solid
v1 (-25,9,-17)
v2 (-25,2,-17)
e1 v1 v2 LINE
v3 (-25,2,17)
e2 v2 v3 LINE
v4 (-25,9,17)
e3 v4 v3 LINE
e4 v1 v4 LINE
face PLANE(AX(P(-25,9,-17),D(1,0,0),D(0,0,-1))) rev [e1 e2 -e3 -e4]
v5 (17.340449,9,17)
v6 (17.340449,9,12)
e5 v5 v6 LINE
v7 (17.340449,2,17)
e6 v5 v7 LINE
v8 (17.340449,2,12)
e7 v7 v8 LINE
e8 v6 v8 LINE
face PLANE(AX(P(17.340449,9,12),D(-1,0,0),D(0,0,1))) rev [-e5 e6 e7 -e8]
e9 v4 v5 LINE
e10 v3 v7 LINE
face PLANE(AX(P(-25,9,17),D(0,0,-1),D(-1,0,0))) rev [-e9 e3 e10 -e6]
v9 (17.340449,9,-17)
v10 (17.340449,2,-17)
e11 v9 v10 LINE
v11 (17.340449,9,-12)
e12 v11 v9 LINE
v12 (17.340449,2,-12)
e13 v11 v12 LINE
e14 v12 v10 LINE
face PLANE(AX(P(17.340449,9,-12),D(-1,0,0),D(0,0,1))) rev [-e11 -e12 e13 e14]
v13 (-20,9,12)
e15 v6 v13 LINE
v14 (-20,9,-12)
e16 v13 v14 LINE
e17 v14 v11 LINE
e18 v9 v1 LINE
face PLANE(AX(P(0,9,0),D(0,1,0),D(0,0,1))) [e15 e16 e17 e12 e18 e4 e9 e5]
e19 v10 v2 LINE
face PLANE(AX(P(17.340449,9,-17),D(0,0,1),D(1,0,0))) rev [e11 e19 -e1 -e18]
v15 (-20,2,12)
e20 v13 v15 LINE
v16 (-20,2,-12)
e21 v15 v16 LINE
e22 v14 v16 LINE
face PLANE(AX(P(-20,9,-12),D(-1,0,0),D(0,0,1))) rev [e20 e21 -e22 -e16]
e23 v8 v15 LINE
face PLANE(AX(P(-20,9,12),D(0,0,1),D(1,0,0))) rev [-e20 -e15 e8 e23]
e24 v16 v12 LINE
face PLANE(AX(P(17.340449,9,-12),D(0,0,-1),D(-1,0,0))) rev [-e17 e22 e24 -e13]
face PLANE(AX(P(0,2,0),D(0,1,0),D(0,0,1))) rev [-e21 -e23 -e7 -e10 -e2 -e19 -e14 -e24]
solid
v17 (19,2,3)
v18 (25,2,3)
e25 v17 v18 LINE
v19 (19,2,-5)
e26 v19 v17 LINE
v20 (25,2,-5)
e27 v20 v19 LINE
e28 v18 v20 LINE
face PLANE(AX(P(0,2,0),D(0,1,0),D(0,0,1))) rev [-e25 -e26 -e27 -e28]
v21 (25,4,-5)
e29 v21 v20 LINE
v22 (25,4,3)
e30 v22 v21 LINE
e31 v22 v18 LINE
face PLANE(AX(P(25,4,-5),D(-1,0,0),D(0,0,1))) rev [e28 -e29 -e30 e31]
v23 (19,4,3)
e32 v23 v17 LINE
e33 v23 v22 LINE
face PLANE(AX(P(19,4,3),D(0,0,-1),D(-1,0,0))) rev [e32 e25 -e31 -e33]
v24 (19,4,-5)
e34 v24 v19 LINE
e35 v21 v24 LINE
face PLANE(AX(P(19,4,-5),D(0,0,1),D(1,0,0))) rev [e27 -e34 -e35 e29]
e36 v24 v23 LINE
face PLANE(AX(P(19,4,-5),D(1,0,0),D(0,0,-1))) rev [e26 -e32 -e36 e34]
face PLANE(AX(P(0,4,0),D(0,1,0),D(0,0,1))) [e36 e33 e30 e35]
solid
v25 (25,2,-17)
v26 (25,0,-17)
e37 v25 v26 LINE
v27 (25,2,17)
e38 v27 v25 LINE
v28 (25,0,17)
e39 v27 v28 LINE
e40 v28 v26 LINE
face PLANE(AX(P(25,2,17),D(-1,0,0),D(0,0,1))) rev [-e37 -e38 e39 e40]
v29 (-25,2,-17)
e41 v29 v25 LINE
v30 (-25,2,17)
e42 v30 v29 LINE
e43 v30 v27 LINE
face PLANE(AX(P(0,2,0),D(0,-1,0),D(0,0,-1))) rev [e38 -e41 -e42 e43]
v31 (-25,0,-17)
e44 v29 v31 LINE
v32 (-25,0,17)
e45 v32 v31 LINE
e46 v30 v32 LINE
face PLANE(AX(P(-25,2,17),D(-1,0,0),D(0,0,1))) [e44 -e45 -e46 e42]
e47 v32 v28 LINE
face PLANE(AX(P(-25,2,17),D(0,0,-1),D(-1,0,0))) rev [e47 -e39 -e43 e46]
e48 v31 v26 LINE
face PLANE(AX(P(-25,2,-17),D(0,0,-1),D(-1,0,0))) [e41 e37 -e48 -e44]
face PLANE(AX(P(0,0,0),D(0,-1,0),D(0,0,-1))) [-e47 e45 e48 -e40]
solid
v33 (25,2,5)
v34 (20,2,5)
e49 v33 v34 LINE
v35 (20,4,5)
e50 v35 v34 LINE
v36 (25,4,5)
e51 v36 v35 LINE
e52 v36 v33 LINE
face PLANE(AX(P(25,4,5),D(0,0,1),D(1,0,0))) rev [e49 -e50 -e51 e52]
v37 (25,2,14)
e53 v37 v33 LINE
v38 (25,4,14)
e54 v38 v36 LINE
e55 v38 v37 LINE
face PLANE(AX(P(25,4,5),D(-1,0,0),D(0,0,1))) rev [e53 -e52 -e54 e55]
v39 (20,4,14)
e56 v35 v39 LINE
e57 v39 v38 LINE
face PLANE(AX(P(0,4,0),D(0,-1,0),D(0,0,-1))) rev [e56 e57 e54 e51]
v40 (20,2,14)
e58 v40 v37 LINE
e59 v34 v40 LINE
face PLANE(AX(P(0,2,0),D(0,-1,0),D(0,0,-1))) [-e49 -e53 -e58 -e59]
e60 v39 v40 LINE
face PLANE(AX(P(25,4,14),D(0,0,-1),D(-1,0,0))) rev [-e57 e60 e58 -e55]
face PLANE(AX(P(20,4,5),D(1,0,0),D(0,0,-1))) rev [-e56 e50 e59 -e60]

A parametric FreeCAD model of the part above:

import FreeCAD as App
import Part
import Sketcher
from FreeCAD import Vector
Q = App.Units.Quantity

doc = App.newDocument("Part")
body = doc.addObject("PartDesign::Body", "Body")

# Sketch on XZ plane
sketch1 = doc.addObject("Sketcher::SketchObject", "Sketch")
body.addObject(sketch1)
sketch1.AttachmentSupport = (doc.XZ_Plane, [""])
sketch1.MapMode = "FlatFace"
sketch1.addGeometry(Part.LineSegment(Vector(-25, -17, 0), Vector(-25, 17, 0)), False)
sketch1.addGeometry(Part.LineSegment(Vector(-25, 17, 0), Vector(25, 17, 0)), False)
sketch1.addGeometry(Part.LineSegment(Vector(25, 17, 0), Vector(25, -17, 0)), False)
sketch1.addGeometry(Part.LineSegment(Vector(25, -17, 0), Vector(-25, -17, 0)), False)
sketch1.addConstraint(Sketcher.Constraint("Coincident", 0, 2, 1, 1))
sketch1.addConstraint(Sketcher.Constraint("Coincident", 1, 2, 2, 1))
sketch1.addConstraint(Sketcher.Constraint("Coincident", 2, 2, 3, 1))
sketch1.addConstraint(Sketcher.Constraint("Coincident", 3, 2, 0, 1))
sketch1.addConstraint(Sketcher.Constraint("Vertical", 0))
sketch1.addConstraint(Sketcher.Constraint("Horizontal", 1))
sketch1.addConstraint(Sketcher.Constraint("Vertical", 2))
sketch1.addConstraint(Sketcher.Constraint("Horizontal", 3))
sketch1.addConstraint(Sketcher.Constraint("Symmetric", 0, 2, 2, 2, -1, 1))
sketch1.addConstraint(Sketcher.Constraint("DistanceX", 1, 1, 1, 2, Q("50 mm")))
sketch1.addConstraint(Sketcher.Constraint("DistanceY", 0, 1, 0, 2, Q("34 mm")))
pad1 = doc.addObject("PartDesign::Pad", "Pad")
body.addObject(pad1)
pad1.Profile = sketch1
pad1.Length = 2
pad1.Reversed = True
body2 = doc.addObject("PartDesign::Body", "Body001")

# Sketch on XZ plane
sketch2 = doc.addObject("Sketcher::SketchObject", "Sketch001")
body2.addObject(sketch2)
sketch2.AttachmentSupport = (doc.getObject("XZ_Plane001"), [""])
sketch2.MapMode = "FlatFace"
sketch2.AttachmentOffset = App.Placement(Vector(0, 0, -2), App.Rotation())
sketch2.addGeometry(Part.LineSegment(Vector(19, -5, 0), Vector(19, 3, 0)), False)
sketch2.addGeometry(Part.LineSegment(Vector(19, 3, 0), Vector(25, 3, 0)), False)
sketch2.addGeometry(Part.LineSegment(Vector(25, 3, 0), Vector(25, -5, 0)), False)
sketch2.addGeometry(Part.LineSegment(Vector(25, -5, 0), Vector(19, -5, 0)), False)
sketch2.addConstraint(Sketcher.Constraint("Coincident", 0, 2, 1, 1))
sketch2.addConstraint(Sketcher.Constraint("Coincident", 1, 2, 2, 1))
sketch2.addConstraint(Sketcher.Constraint("Coincident", 2, 2, 3, 1))
sketch2.addConstraint(Sketcher.Constraint("Coincident", 3, 2, 0, 1))
sketch2.addConstraint(Sketcher.Constraint("Vertical", 0))
sketch2.addConstraint(Sketcher.Constraint("Horizontal", 1))
sketch2.addConstraint(Sketcher.Constraint("Vertical", 2))
sketch2.addConstraint(Sketcher.Constraint("Horizontal", 3))
sketch2.addConstraint(Sketcher.Constraint("DistanceX", 1, 1, 1, 2, Q("6 mm")))
sketch2.addConstraint(Sketcher.Constraint("DistanceY", 0, 1, 0, 2, Q("8 mm")))
sketch2.addConstraint(Sketcher.Constraint("DistanceX", -1, 1, 0, 2, Q("19 mm")))
sketch2.addConstraint(Sketcher.Constraint("DistanceY", -1, 1, 0, 2, Q("3 mm")))
pad2 = doc.addObject("PartDesign::Pad", "Pad001")
body2.addObject(pad2)
pad2.Profile = sketch2
pad2.Length = 2
pad2.Reversed = True
body3 = doc.addObject("PartDesign::Body", "Body002")

# Sketch on XZ plane
sketch3 = doc.addObject("Sketcher::SketchObject", "Sketch002")
body3.addObject(sketch3)
sketch3.AttachmentSupport = (doc.getObject("XZ_Plane002"), [""])
sketch3.MapMode = "FlatFace"
sketch3.AttachmentOffset = App.Placement(Vector(0, 0, -2), App.Rotation())
sketch3.addGeometry(Part.LineSegment(Vector(20, 5, 0), Vector(20, 14, 0)), False)
sketch3.addGeometry(Part.LineSegment(Vector(20, 14, 0), Vector(25, 14, 0)), False)
sketch3.addGeometry(Part.LineSegment(Vector(25, 14, 0), Vector(25, 5, 0)), False)
sketch3.addGeometry(Part.LineSegment(Vector(25, 5, 0), Vector(20, 5, 0)), False)
sketch3.addConstraint(Sketcher.Constraint("Coincident", 0, 2, 1, 1))
sketch3.addConstraint(Sketcher.Constraint("Coincident", 1, 2, 2, 1))
sketch3.addConstraint(Sketcher.Constraint("Coincident", 2, 2, 3, 1))
sketch3.addConstraint(Sketcher.Constraint("Coincident", 3, 2, 0, 1))
sketch3.addConstraint(Sketcher.Constraint("Vertical", 0))
sketch3.addConstraint(Sketcher.Constraint("Horizontal", 1))
sketch3.addConstraint(Sketcher.Constraint("Vertical", 2))
sketch3.addConstraint(Sketcher.Constraint("Horizontal", 3))
sketch3.addConstraint(Sketcher.Constraint("DistanceX", 1, 1, 1, 2, Q("5 mm")))
sketch3.addConstraint(Sketcher.Constraint("DistanceY", 0, 1, 0, 2, Q("9 mm")))
sketch3.addConstraint(Sketcher.Constraint("DistanceX", -1, 1, 0, 2, Q("20 mm")))
sketch3.addConstraint(Sketcher.Constraint("DistanceY", -1, 1, 0, 2, Q("14 mm")))
pad3 = doc.addObject("PartDesign::Pad", "Pad002")
body3.addObject(pad3)
pad3.Profile = sketch3
pad3.Length = 2
pad3.Reversed = True
body4 = doc.addObject("PartDesign::Body", "Body003")

# Sketch on XZ plane
sketch4 = doc.addObject("Sketcher::SketchObject", "Sketch003")
body4.addObject(sketch4)
sketch4.AttachmentSupport = (doc.getObject("XZ_Plane003"), [""])
sketch4.MapMode = "FlatFace"
sketch4.AttachmentOffset = App.Placement(Vector(0, 0, -2), App.Rotation())
sketch4.addGeometry(Part.LineSegment(Vector(-20, -12, 0), Vector(17, -12, 0)), False)
sketch4.addGeometry(Part.LineSegment(Vector(17, -12, 0), Vector(17, -17, 0)), False)
sketch4.addGeometry(Part.LineSegment(Vector(17, -17, 0), Vector(-25, -17, 0)), False)
sketch4.addGeometry(Part.LineSegment(Vector(-25, -17, 0), Vector(-25, 17, 0)), False)
sketch4.addGeometry(Part.LineSegment(Vector(-25, 17, 0), Vector(17, 17, 0)), False)
sketch4.addGeometry(Part.LineSegment(Vector(17, 17, 0), Vector(17, 12, 0)), False)
sketch4.addGeometry(Part.LineSegment(Vector(17, 12, 0), Vector(-20, 12, 0)), False)
sketch4.addGeometry(Part.LineSegment(Vector(-20, 12, 0), Vector(-20, -12, 0)), False)
sketch4.addConstraint(Sketcher.Constraint("Coincident", 0, 2, 1, 1))
sketch4.addConstraint(Sketcher.Constraint("Coincident", 1, 2, 2, 1))
sketch4.addConstraint(Sketcher.Constraint("Coincident", 2, 2, 3, 1))
sketch4.addConstraint(Sketcher.Constraint("Coincident", 3, 2, 4, 1))
sketch4.addConstraint(Sketcher.Constraint("Coincident", 4, 2, 5, 1))
sketch4.addConstraint(Sketcher.Constraint("Coincident", 5, 2, 6, 1))
sketch4.addConstraint(Sketcher.Constraint("Coincident", 6, 2, 7, 1))
sketch4.addConstraint(Sketcher.Constraint("Coincident", 7, 2, 0, 1))
sketch4.addConstraint(Sketcher.Constraint("Horizontal", 0))
sketch4.addConstraint(Sketcher.Constraint("Vertical", 1))
sketch4.addConstraint(Sketcher.Constraint("Horizontal", 2))
sketch4.addConstraint(Sketcher.Constraint("Vertical", 3))
sketch4.addConstraint(Sketcher.Constraint("Horizontal", 4))
sketch4.addConstraint(Sketcher.Constraint("Vertical", 5))
sketch4.addConstraint(Sketcher.Constraint("Horizontal", 6))
sketch4.addConstraint(Sketcher.Constraint("Vertical", 7))
sketch4.addConstraint(Sketcher.Constraint("Symmetric", 1, 2, 4, 2, -1))
sketch4.addConstraint(Sketcher.Constraint("Equal", 1, 5))
sketch4.addConstraint(Sketcher.Constraint("DistanceY", 1, 2, 1, 1, Q("5 mm")))
sketch4.addConstraint(Sketcher.Constraint("DistanceY", 3, 1, 3, 2, Q("34 mm")))
sketch4.addConstraint(Sketcher.Constraint("DistanceX", 2, 2, -1, 1, Q("25 mm")))
sketch4.addConstraint(Sketcher.Constraint("DistanceX", 6, 2, -1, 1, Q("20 mm")))
sketch4.addConstraint(Sketcher.Constraint("DistanceX", 0, 1, 0, 2, Q("37.340449 mm")))
pad4 = doc.addObject("PartDesign::Pad", "Pad003")
body4.addObject(pad4)
pad4.Profile = sketch4
pad4.Length = 7
pad4.Reversed = True

doc.recompute()
